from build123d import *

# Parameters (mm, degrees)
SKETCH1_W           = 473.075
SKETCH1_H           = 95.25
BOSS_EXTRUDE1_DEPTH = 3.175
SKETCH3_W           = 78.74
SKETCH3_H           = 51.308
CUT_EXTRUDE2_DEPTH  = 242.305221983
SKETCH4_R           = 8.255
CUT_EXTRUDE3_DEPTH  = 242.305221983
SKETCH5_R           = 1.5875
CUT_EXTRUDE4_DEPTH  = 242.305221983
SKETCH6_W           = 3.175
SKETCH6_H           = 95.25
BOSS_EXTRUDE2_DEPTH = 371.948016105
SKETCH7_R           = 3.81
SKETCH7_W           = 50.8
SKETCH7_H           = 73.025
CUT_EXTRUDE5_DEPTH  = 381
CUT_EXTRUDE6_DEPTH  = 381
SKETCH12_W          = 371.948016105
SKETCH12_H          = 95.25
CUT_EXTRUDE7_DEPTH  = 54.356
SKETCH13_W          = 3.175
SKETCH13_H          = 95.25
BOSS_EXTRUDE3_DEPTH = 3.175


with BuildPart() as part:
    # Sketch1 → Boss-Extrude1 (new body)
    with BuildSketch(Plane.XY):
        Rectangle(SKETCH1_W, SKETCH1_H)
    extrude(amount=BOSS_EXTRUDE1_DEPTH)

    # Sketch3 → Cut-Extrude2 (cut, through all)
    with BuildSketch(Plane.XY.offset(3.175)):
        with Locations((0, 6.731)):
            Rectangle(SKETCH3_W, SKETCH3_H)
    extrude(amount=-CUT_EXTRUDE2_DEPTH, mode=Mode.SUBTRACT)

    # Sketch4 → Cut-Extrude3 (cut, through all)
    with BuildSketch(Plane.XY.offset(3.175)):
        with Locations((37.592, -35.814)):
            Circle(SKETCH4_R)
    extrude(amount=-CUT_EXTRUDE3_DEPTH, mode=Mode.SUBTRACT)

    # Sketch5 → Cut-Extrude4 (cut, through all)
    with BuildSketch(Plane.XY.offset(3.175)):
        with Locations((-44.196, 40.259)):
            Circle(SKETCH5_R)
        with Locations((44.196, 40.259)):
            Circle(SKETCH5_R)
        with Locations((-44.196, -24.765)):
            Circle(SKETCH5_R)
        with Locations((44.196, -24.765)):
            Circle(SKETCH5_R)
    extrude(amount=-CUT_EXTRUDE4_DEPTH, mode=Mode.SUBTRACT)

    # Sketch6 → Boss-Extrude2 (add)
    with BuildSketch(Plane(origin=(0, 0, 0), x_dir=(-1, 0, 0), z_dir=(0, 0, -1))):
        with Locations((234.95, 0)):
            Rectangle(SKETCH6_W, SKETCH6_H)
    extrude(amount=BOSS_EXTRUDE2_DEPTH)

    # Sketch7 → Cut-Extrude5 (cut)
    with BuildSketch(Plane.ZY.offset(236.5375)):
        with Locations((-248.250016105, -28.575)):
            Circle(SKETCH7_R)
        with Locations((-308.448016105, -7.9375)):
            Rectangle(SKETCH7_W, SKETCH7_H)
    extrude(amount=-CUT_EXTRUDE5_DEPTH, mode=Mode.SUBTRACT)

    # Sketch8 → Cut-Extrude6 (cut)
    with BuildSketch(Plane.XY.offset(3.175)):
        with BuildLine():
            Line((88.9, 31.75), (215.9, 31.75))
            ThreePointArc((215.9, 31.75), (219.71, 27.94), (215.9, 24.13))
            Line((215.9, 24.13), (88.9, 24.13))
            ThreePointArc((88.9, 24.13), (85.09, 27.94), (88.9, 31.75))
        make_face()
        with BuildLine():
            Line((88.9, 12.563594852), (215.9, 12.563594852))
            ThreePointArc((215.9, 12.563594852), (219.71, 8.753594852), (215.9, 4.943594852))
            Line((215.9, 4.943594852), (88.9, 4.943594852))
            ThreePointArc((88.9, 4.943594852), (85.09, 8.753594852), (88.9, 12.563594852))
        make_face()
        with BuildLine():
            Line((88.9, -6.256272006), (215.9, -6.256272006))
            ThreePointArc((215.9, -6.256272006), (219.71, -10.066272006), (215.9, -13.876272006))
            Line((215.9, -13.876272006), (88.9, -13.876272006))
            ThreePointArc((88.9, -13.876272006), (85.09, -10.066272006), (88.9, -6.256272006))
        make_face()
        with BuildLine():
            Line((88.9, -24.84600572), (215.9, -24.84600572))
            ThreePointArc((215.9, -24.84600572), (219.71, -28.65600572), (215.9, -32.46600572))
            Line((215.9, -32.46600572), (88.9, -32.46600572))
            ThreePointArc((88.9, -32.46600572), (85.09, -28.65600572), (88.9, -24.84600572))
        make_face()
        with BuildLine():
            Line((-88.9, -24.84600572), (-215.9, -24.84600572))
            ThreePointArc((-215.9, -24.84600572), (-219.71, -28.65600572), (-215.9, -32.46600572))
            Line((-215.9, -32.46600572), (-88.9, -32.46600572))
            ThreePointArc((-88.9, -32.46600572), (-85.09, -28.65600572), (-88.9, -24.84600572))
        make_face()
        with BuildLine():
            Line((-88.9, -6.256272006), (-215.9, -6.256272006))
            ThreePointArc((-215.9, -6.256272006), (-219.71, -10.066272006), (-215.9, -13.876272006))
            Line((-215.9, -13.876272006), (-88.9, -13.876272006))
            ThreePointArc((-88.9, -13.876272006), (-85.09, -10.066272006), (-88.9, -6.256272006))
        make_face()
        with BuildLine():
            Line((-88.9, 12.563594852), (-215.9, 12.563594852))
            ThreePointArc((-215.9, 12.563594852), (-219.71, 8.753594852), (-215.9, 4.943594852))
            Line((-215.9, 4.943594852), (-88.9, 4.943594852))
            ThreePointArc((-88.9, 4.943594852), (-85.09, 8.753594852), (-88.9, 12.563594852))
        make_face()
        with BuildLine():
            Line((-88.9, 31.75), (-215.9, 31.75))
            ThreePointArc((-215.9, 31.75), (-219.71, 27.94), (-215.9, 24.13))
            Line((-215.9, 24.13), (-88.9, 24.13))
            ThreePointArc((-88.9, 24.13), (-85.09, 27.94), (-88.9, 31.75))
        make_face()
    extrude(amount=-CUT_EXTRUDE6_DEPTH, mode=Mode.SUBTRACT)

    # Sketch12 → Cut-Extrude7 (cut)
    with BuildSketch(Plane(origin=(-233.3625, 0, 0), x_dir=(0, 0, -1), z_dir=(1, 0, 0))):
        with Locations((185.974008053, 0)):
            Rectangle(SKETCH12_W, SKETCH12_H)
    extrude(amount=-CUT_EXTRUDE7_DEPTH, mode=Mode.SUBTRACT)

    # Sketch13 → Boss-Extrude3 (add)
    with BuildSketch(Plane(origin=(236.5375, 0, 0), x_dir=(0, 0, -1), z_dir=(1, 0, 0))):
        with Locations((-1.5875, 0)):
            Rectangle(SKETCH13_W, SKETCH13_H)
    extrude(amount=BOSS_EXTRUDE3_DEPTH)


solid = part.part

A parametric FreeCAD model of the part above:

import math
import FreeCAD as App
import Part
import Sketcher

V = App.Vector
Q = App.Units.Quantity


def add_polygon(sketch, points):
    """Adds a closed chain of lines whose ends are joined by coincident constraints."""
    first, n = sketch.GeometryCount, len(points)
    for a, b in zip(points, points[1:] + points[:1]):
        sketch.addGeometry(Part.LineSegment(App.Vector(*a, 0), App.Vector(*b, 0)), False)
    for i in range(n):
        sketch.addConstraint(Sketcher.Constraint("Coincident", first + i, 2, first + (i + 1) % n, 1))

doc = App.newDocument("Part")
body = doc.addObject("PartDesign::Body", "Body")

# Sketch on XY plane
sketch1 = body.newObject("Sketcher::SketchObject", "Sketch")
sketch1.AttachmentSupport = (doc.getObject("XY_Plane"), [""])
sketch1.MapMode = "FlatFace"
add_polygon(sketch1, [(-237, 48), (-237, -48), (237, -48), (237, 48)])  # lines 0-3
sketch1.addConstraint(Sketcher.Constraint("Vertical", 0))
sketch1.addConstraint(Sketcher.Constraint("Horizontal", 1))
sketch1.addConstraint(Sketcher.Constraint("Vertical", 2))
sketch1.addConstraint(Sketcher.Constraint("Horizontal", 3))
sketch1.addConstraint(Sketcher.Constraint("Symmetric", 0, 2, 2, 2, -1, 1))
sketch1.addConstraint(Sketcher.Constraint("DistanceY", 0, 2, 0, 1, Q("3.75 in")))
sketch1.addConstraint(Sketcher.Constraint("DistanceX", 1, 1, 1, 2, Q("18.625 in")))
pad1 = body.newObject("PartDesign::Pad", "Pad")
pad1.Profile = sketch1
pad1.Length = Q("0.125 in")

# Sketch on XY plane
sketch2 = body.newObject("Sketcher::SketchObject", "Sketch001")
sketch2.AttachmentSupport = (doc.getObject("XY_Plane"), [""])
sketch2.MapMode = "FlatFace"
sketch2.AttachmentOffset = App.Placement(V(0, 0, 0.125 * 25.4), App.Rotation())
add_polygon(sketch2, [(-39, 32), (-39, -19), (39, -19), (39, 32)])  # lines 0-3
sketch2.addConstraint(Sketcher.Constraint("Vertical", 0))
sketch2.addConstraint(Sketcher.Constraint("Horizontal", 1))
sketch2.addConstraint(Sketcher.Constraint("Vertical", 2))
sketch2.addConstraint(Sketcher.Constraint("Horizontal", 3))
sketch2.addConstraint(Sketcher.Constraint("DistanceX", 1, 1, 1, 2, Q("3.1 in")))
sketch2.addConstraint(Sketcher.Constraint("DistanceY", 0, 2, 0, 1, Q("2.02 in")))
sketch2.addConstraint(Sketcher.Constraint("DistanceX", 0, 2, -1, 1, Q("1.55 in")))
sketch2.addConstraint(Sketcher.Constraint("DistanceY", 0, 2, -1, 1, Q("0.745 in")))
pocket1 = body.newObject("PartDesign::Pocket", "Pocket")
pocket1.Profile = sketch2
pocket1.Type = "ThroughAll"

# Sketch on XY plane
sketch3 = body.newObject("Sketcher::SketchObject", "Sketch002")
sketch3.AttachmentSupport = (doc.getObject("XY_Plane"), [""])
sketch3.MapMode = "FlatFace"
sketch3.AttachmentOffset = App.Placement(V(0, 0, 0.125 * 25.4), App.Rotation())
sketch3.addGeometry(Part.Circle(V(38, -36, 0), V(0, 0, 1), 8), False)
sketch3.addConstraint(Sketcher.Constraint("Diameter", 0, Q("0.65 in")))
sketch3.addConstraint(Sketcher.Constraint("DistanceX", -1, 1, 0, 3, Q("1.48 in")))
sketch3.addConstraint(Sketcher.Constraint("DistanceY", 0, 3, -1, 1, Q("1.41 in")))
pocket2 = body.newObject("PartDesign::Pocket", "Pocket001")
pocket2.Profile = sketch3
pocket2.Type = "ThroughAll"

# Sketch on XY plane
sketch4 = body.newObject("Sketcher::SketchObject", "Sketch003")
sketch4.AttachmentSupport = (doc.getObject("XY_Plane"), [""])
sketch4.MapMode = "FlatFace"
sketch4.AttachmentOffset = App.Placement(V(0, 0, 0.125 * 25.4), App.Rotation())
sketch4.addGeometry(Part.Circle(V(-44.2, 40.3, 0), V(0, 0, 1), 1.6), False)
sketch4.addGeometry(Part.Circle(V(44.2, 40.3, 0), V(0, 0, 1), 1.6), False)
sketch4.addGeometry(Part.Circle(V(-44.2, -24.8, 0), V(0, 0, 1), 1.6), False)
sketch4.addGeometry(Part.Circle(V(44.2, -24.8, 0), V(0, 0, 1), 1.6), False)
sketch4.addConstraint(Sketcher.Constraint("Equal", 0, 1))
sketch4.addConstraint(Sketcher.Constraint("Equal", 1, 2))
sketch4.addConstraint(Sketcher.Constraint("Equal", 2, 3))
sketch4.addConstraint(Sketcher.Constraint("Symmetric", 0, 3, 1, 3, -2))
sketch4.addConstraint(Sketcher.Constraint("Symmetric", 2, 3, 3, 3, -2))
sketch4.addConstraint(Sketcher.Constraint("Vertical", 0, 3, 2, 3))
sketch4.addConstraint(Sketcher.Constraint("Diameter", 0, Q("0.125 in")))
sketch4.addConstraint(Sketcher.Constraint("DistanceX", 0, 3, -1, 1, Q("1.74 in")))
sketch4.addConstraint(Sketcher.Constraint("DistanceY", 2, 3, 0, 3, Q("2.56 in")))
sketch4.addConstraint(Sketcher.Constraint("DistanceY", -1, 1, 0, 3, Q("1.585 in")))
pocket3 = body.newObject("PartDesign::Pocket", "Pocket002")
pocket3.Profile = sketch4
pocket3.Type = "ThroughAll"

# Sketch on XY plane
sketch5 = body.newObject("Sketcher::SketchObject", "Sketch004")
sketch5.AttachmentSupport = (doc.getObject("XY_Plane"), [""])
sketch5.MapMode = "FlatFace"
add_polygon(sketch5, [(-233.4, 47.6), (-233.4, -47.6), (-236.5, -47.6), (-236.5, 47.6)])  # lines 0-3
sketch5.addConstraint(Sketcher.Constraint("Vertical", 0))
sketch5.addConstraint(Sketcher.Constraint("Horizontal", 1))
sketch5.addConstraint(Sketcher.Constraint("Vertical", 2))
sketch5.addConstraint(Sketcher.Constraint("Horizontal", 3))
sketch5.addConstraint(Sketcher.Constraint("DistanceY", 0, 2, 0, 1, Q("3.75 in")))
sketch5.addConstraint(Sketcher.Constraint("DistanceX", 1, 2, 1, 1, Q("0.125 in")))
sketch5.addConstraint(Sketcher.Constraint("DistanceX", 0, 2, -1, 1, Q("9.1875 in")))
sketch5.addConstraint(Sketcher.Constraint("DistanceY", 0, 2, -1, 1, Q("1.875 in")))
pad2 = body.newObject("PartDesign::Pad", "Pad001")
pad2.Profile = sketch5
pad2.Length = 371.948016
pad2.Reversed = True

# Sketch on YZ plane
sketch6 = body.newObject("Sketcher::SketchObject", "Sketch005")
sketch6.AttachmentSupport = (doc.getObject("YZ_Plane"), [""])
sketch6.MapMode = "FlatFace"
sketch6.AttachmentOffset = App.Placement(V(0, 0, -9.3125 * 25.4), App.Rotation())
sketch6.addGeometry(Part.Circle(V(-28.6, -248.3, 0), V(0, 0, 1), 3.8), False)  # 0
add_polygon(sketch6, [(28.6, -333.8), (-44.5, -333.8), (-44.5, -283), (28.6, -283)])  # lines 1-4
sketch6.addConstraint(Sketcher.Constraint("Horizontal", 1))
sketch6.addConstraint(Sketcher.Constraint("Vertical", 2))
sketch6.addConstraint(Sketcher.Constraint("Horizontal", 3))
sketch6.addConstraint(Sketcher.Constraint("Vertical", 4))
sketch6.addConstraint(Sketcher.Constraint("Diameter", 0, Q("0.3 in")))
sketch6.addConstraint(Sketcher.Constraint("DistanceY", 2, 1, 2, 2, Q("2 in")))
sketch6.addConstraint(Sketcher.Constraint("DistanceX", 1, 2, 1, 1, Q("2.875 in")))
sketch6.addConstraint(Sketcher.Constraint("DistanceX", 1, 2, -1, 1, Q("1.75 in")))
sketch6.addConstraint(Sketcher.Constraint("DistanceY", 1, 2, 0, 3, Q("3.37 in")))
sketch6.addConstraint(Sketcher.Constraint("DistanceX", 0, 3, 3, 2, Q("2.25 in")))
sketch6.addConstraint(Sketcher.Constraint("DistanceY", 0, 3, -1, 1, Q("248.250016 mm")))
pocket4 = body.newObject("PartDesign::Pocket", "Pocket003")
pocket4.Profile = sketch6
pocket4.Length = Q("15 in")
pocket4.Reversed = True

# Sketch on XY plane
sketch7 = body.newObject("Sketcher::SketchObject", "Sketch006")
sketch7.AttachmentSupport = (doc.getObject("XY_Plane"), [""])
sketch7.MapMode = "FlatFace"
sketch7.AttachmentOffset = App.Placement(V(0, 0, 0.125 * 25.4), App.Rotation())
sketch7.addGeometry(Part.LineSegment(V(215.9, 31.8, 0), V(88.9, 31.8, 0)), False)
sketch7.addGeometry(Part.ArcOfCircle(Part.Circle(V(88.9, 27.9, 0), V(0, 0, 1), 3.8), math.radians(90), math.radians(270)), False)
sketch7.addGeometry(Part.LineSegment(V(88.9, 24.1, 0), V(215.9, 24.1, 0)), False)
sketch7.addGeometry(Part.ArcOfCircle(Part.Circle(V(215.9, 27.9, 0), V(0, 0, 1), 3.8), math.radians(-90), math.radians(90)), False)
sketch7.addGeometry(Part.LineSegment(V(215.9, 12.6, 0), V(88.9, 12.6, 0)), False)
sketch7.addGeometry(Part.ArcOfCircle(Part.Circle(V(88.9, 8.8, 0), V(0, 0, 1), 3.8), math.radians(90), math.radians(270)), False)
sketch7.addGeometry(Part.LineSegment(V(88.9, 4.9, 0), V(215.9, 4.9, 0)), False)
sketch7.addGeometry(Part.ArcOfCircle(Part.Circle(V(215.9, 8.8, 0), V(0, 0, 1), 3.8), math.radians(-90), math.radians(90)), False)
sketch7.addGeometry(Part.LineSegment(V(215.9, -6.3, 0), V(88.9, -6.3, 0)), False)
sketch7.addGeometry(Part.ArcOfCircle(Part.Circle(V(88.9, -10.1, 0), V(0, 0, 1), 3.8), math.radians(90), math.radians(270)), False)
sketch7.addGeometry(Part.LineSegment(V(88.9, -13.9, 0), V(215.9, -13.9, 0)), False)
sketch7.addGeometry(Part.ArcOfCircle(Part.Circle(V(215.9, -10.1, 0), V(0, 0, 1), 3.8), math.radians(-90), math.radians(90)), False)
sketch7.addGeometry(Part.LineSegment(V(215.9, -24.8, 0), V(88.9, -24.8, 0)), False)
sketch7.addGeometry(Part.ArcOfCircle(Part.Circle(V(88.9, -28.7, 0), V(0, 0, 1), 3.8), math.radians(90), math.radians(270)), False)
sketch7.addGeometry(Part.LineSegment(V(88.9, -32.5, 0), V(215.9, -32.5, 0)), False)
sketch7.addGeometry(Part.ArcOfCircle(Part.Circle(V(215.9, -28.7, 0), V(0, 0, 1), 3.8), math.radians(-90), math.radians(90)), False)
sketch7.addGeometry(Part.LineSegment(V(-88.9, -24.8, 0), V(-215.9, -24.8, 0)), False)
sketch7.addGeometry(Part.ArcOfCircle(Part.Circle(V(-215.9, -28.7, 0), V(0, 0, 1), 3.8), math.radians(90), math.radians(270)), False)
sketch7.addGeometry(Part.LineSegment(V(-215.9, -32.5, 0), V(-88.9, -32.5, 0)), False)
sketch7.addGeometry(Part.ArcOfCircle(Part.Circle(V(-88.9, -28.7, 0), V(0, 0, 1), 3.8), math.radians(-90), math.radians(90)), False)
sketch7.addGeometry(Part.LineSegment(V(-88.9, -6.3, 0), V(-215.9, -6.3, 0)), False)
sketch7.addGeometry(Part.ArcOfCircle(Part.Circle(V(-215.9, -10.1, 0), V(0, 0, 1), 3.8), math.radians(90), math.radians(270)), False)
sketch7.addGeometry(Part.LineSegment(V(-215.9, -13.9, 0), V(-88.9, -13.9, 0)), False)
sketch7.addGeometry(Part.ArcOfCircle(Part.Circle(V(-88.9, -10.1, 0), V(0, 0, 1), 3.8), math.radians(-90), math.radians(90)), False)
sketch7.addGeometry(Part.LineSegment(V(-88.9, 12.6, 0), V(-215.9, 12.6, 0)), False)
sketch7.addGeometry(Part.ArcOfCircle(Part.Circle(V(-215.9, 8.8, 0), V(0, 0, 1), 3.8), math.radians(90), math.radians(270)), False)
sketch7.addGeometry(Part.LineSegment(V(-215.9, 4.9, 0), V(-88.9, 4.9, 0)), False)
sketch7.addGeometry(Part.ArcOfCircle(Part.Circle(V(-88.9, 8.8, 0), V(0, 0, 1), 3.8), math.radians(-90), math.radians(90)), False)
sketch7.addGeometry(Part.LineSegment(V(-88.9, 31.8, 0), V(-215.9, 31.8, 0)), False)
sketch7.addGeometry(Part.ArcOfCircle(Part.Circle(V(-215.9, 27.9, 0), V(0, 0, 1), 3.8), math.radians(90), math.radians(270)), False)
sketch7.addGeometry(Part.LineSegment(V(-215.9, 24.1, 0), V(-88.9, 24.1, 0)), False)
sketch7.addGeometry(Part.ArcOfCircle(Part.Circle(V(-88.9, 27.9, 0), V(0, 0, 1), 3.8), math.radians(-90), math.radians(90)), False)
sketch7.addConstraint(Sketcher.Constraint("Tangent", 0, 2, 1, 1))
sketch7.addConstraint(Sketcher.Constraint("Tangent", 1, 2, 2, 1))
sketch7.addConstraint(Sketcher.Constraint("Tangent", 2, 2, 3, 1))
sketch7.addConstraint(Sketcher.Constraint("Tangent", 3, 2, 0, 1))
sketch7.addConstraint(Sketcher.Constraint("Tangent", 4, 2, 5, 1))
sketch7.addConstraint(Sketcher.Constraint("Tangent", 5, 2, 6, 1))
sketch7.addConstraint(Sketcher.Constraint("Tangent", 6, 2, 7, 1))
sketch7.addConstraint(Sketcher.Constraint("Tangent", 7, 2, 4, 1))
sketch7.addConstraint(Sketcher.Constraint("Tangent", 8, 2, 9, 1))
sketch7.addConstraint(Sketcher.Constraint("Tangent", 9, 2, 10, 1))
sketch7.addConstraint(Sketcher.Constraint("Tangent", 10, 2, 11, 1))
sketch7.addConstraint(Sketcher.Constraint("Tangent", 11, 2, 8, 1))
sketch7.addConstraint(Sketcher.Constraint("Tangent", 12, 2, 13, 1))
sketch7.addConstraint(Sketcher.Constraint("Tangent", 13, 2, 14, 1))
sketch7.addConstraint(Sketcher.Constraint("Tangent", 14, 2, 15, 1))
sketch7.addConstraint(Sketcher.Constraint("Tangent", 15, 2, 12, 1))
sketch7.addConstraint(Sketcher.Constraint("Tangent", 16, 2, 17, 1))
sketch7.addConstraint(Sketcher.Constraint("Tangent", 17, 2, 18, 1))
sketch7.addConstraint(Sketcher.Constraint("Tangent", 18, 2, 19, 1))
sketch7.addConstraint(Sketcher.Constraint("Tangent", 19, 2, 16, 1))
sketch7.addConstraint(Sketcher.Constraint("Tangent", 20, 2, 21, 1))
sketch7.addConstraint(Sketcher.Constraint("Tangent", 21, 2, 22, 1))
sketch7.addConstraint(Sketcher.Constraint("Tangent", 22, 2, 23, 1))
sketch7.addConstraint(Sketcher.Constraint("Tangent", 23, 2, 20, 1))
sketch7.addConstraint(Sketcher.Constraint("Tangent", 24, 2, 25, 1))
sketch7.addConstraint(Sketcher.Constraint("Tangent", 25, 2, 26, 1))
sketch7.addConstraint(Sketcher.Constraint("Tangent", 26, 2, 27, 1))
sketch7.addConstraint(Sketcher.Constraint("Tangent", 27, 2, 24, 1))
sketch7.addConstraint(Sketcher.Constraint("Tangent", 28, 2, 29, 1))
sketch7.addConstraint(Sketcher.Constraint("Tangent", 29, 2, 30, 1))
sketch7.addConstraint(Sketcher.Constraint("Tangent", 30, 2, 31, 1))
sketch7.addConstraint(Sketcher.Constraint("Tangent", 31, 2, 28, 1))
sketch7.addConstraint(Sketcher.Constraint("Horizontal", 0))
sketch7.addConstraint(Sketcher.Constraint("Horizontal", 2))
sketch7.addConstraint(Sketcher.Constraint("Horizontal", 4))
sketch7.addConstraint(Sketcher.Constraint("Horizontal", 6))
sketch7.addConstraint(Sketcher.Constraint("Horizontal", 8))
sketch7.addConstraint(Sketcher.Constraint("Horizontal", 10))
sketch7.addConstraint(Sketcher.Constraint("Horizontal", 12))
sketch7.addConstraint(Sketcher.Constraint("Horizontal", 14))
sketch7.addConstraint(Sketcher.Constraint("Horizontal", 16))
sketch7.addConstraint(Sketcher.Constraint("Horizontal", 18))
sketch7.addConstraint(Sketcher.Constraint("Horizontal", 20))
sketch7.addConstraint(Sketcher.Constraint("Horizontal", 22))
sketch7.addConstraint(Sketcher.Constraint("Horizontal", 24))
sketch7.addConstraint(Sketcher.Constraint("Horizontal", 26))
sketch7.addConstraint(Sketcher.Constraint("Horizontal", 28))
sketch7.addConstraint(Sketcher.Constraint("Horizontal", 30))
sketch7.addConstraint(Sketcher.Constraint("Equal", 3, 5))
sketch7.addConstraint(Sketcher.Constraint("Equal", 7, 9))
sketch7.addConstraint(Sketcher.Constraint("Equal", 11, 13))
sketch7.addConstraint(Sketcher.Constraint("Equal", 15, 17))
sketch7.addConstraint(Sketcher.Constraint("Equal", 19, 21))
sketch7.addConstraint(Sketcher.Constraint("Equal", 23, 25))
sketch7.addConstraint(Sketcher.Constraint("Equal", 27, 29))
sketch7.addConstraint(Sketcher.Constraint("Symmetric", 15, 3, 17, 3, -2))
sketch7.addConstraint(Sketcher.Constraint("Symmetric", 11, 3, 21, 3, -2))
sketch7.addConstraint(Sketcher.Constraint("Symmetric", 7, 3, 25, 3, -2))
sketch7.addConstraint(Sketcher.Constraint("Symmetric", 3, 3, 29, 3, -2))
sketch7.addConstraint(Sketcher.Constraint("Vertical", 1, 3, 5, 3))
sketch7.addConstraint(Sketcher.Constraint("Vertical", 3, 3, 7, 3))
sketch7.addConstraint(Sketcher.Constraint("Vertical", 5, 3, 9, 3))
sketch7.addConstraint(Sketcher.Constraint("Vertical", 7, 3, 11, 3))
sketch7.addConstraint(Sketcher.Constraint("Vertical", 9, 3, 13, 3))
sketch7.addConstraint(Sketcher.Constraint("Vertical", 11, 3, 15, 3))
sketch7.addConstraint(Sketcher.Constraint("Vertical", 19, 3, 23, 3))
sketch7.addConstraint(Sketcher.Constraint("Vertical", 23, 3, 27, 3))
sketch7.addConstraint(Sketcher.Constraint("Vertical", 27, 3, 31, 3))
sketch7.addConstraint(Sketcher.Constraint("Equal", 14, 16))
sketch7.addConstraint(Sketcher.Constraint("DistanceX", 0, 2, 0, 1, Q("5 in")))
sketch7.addConstraint(Sketcher.Constraint("Radius", 1, Q("0.15 in")))
sketch7.addConstraint(Sketcher.Constraint("DistanceX", 17, 3, 13, 3, Q("12 in")))
sketch7.addConstraint(Sketcher.Constraint("DistanceY", -1, 1, 1, 3, Q("1.1 in")))
sketch7.addConstraint(Sketcher.Constraint("DistanceY", 13, 3, 5, 3, Q("37.409601 mm")))
sketch7.addConstraint(Sketcher.Constraint("DistanceY", -1, 1, 5, 3, Q("8.753595 mm")))
sketch7.addConstraint(Sketcher.Constraint("DistanceY", 9, 3, -1, 1, Q("10.066272 mm")))
pocket5 = body.newObject("PartDesign::Pocket", "Pocket004")
pocket5.Profile = sketch7
pocket5.Length = Q("15 in")

# Sketch on YZ plane
sketch8 = body.newObject("Sketcher::SketchObject", "Sketch007")
sketch8.AttachmentSupport = (doc.getObject("YZ_Plane"), [""])
sketch8.MapMode = "FlatFace"
sketch8.AttachmentOffset = App.Placement(V(0, 0, -9.1875 * 25.4), App.Rotation())
add_polygon(sketch8, [(48, 0), (-48, 0), (-48, -372), (48, -372)])  # lines 0-3
sketch8.addConstraint(Sketcher.Constraint("Horizontal", 0))
sketch8.addConstraint(Sketcher.Constraint("Vertical", 1))
sketch8.addConstraint(Sketcher.Constraint("Horizontal", 2))
sketch8.addConstraint(Sketcher.Constraint("Vertical", 3))
sketch8.addConstraint(Sketcher.Constraint("Symmetric", 0, 2, 3, 2, -1, 1))
sketch8.addConstraint(Sketcher.Constraint("DistanceX", 0, 2, 0, 1, Q("3.75 in")))
sketch8.addConstraint(Sketcher.Constraint("DistanceY", 1, 2, 1, 1, Q("371.948016 mm")))
pocket6 = body.newObject("PartDesign::Pocket", "Pocket005")
pocket6.Profile = sketch8
pocket6.Length = Q("2.14 in")

# Sketch on YZ plane
sketch9 = body.newObject("Sketcher::SketchObject", "Sketch008")
sketch9.AttachmentSupport = (doc.getObject("YZ_Plane"), [""])
sketch9.MapMode = "FlatFace"
sketch9.AttachmentOffset = App.Placement(V(0, 0, 9.3125 * 25.4), App.Rotation())
add_polygon(sketch9, [(47.6, 3.2), (-47.6, 3.2), (-47.6, 0), (47.6, 0)])  # lines 0-3
sketch9.addConstraint(Sketcher.Constraint("Horizontal", 0))
sketch9.addConstraint(Sketcher.Constraint("Vertical", 1))
sketch9.addConstraint(Sketcher.Constraint("Horizontal", 2))
sketch9.addConstraint(Sketcher.Constraint("Vertical", 3))
sketch9.addConstraint(Sketcher.Constraint("Symmetric", 1, 2, 2, 2, -1, 1))
sketch9.addConstraint(Sketcher.Constraint("DistanceX", 0, 2, 0, 1, Q("3.75 in")))
sketch9.addConstraint(Sketcher.Constraint("DistanceY", 1, 2, 1, 1, Q("0.125 in")))
pad3 = body.newObject("PartDesign::Pad", "Pad002")
pad3.Profile = sketch9
pad3.Length = Q("0.125 in")

doc.recompute()
